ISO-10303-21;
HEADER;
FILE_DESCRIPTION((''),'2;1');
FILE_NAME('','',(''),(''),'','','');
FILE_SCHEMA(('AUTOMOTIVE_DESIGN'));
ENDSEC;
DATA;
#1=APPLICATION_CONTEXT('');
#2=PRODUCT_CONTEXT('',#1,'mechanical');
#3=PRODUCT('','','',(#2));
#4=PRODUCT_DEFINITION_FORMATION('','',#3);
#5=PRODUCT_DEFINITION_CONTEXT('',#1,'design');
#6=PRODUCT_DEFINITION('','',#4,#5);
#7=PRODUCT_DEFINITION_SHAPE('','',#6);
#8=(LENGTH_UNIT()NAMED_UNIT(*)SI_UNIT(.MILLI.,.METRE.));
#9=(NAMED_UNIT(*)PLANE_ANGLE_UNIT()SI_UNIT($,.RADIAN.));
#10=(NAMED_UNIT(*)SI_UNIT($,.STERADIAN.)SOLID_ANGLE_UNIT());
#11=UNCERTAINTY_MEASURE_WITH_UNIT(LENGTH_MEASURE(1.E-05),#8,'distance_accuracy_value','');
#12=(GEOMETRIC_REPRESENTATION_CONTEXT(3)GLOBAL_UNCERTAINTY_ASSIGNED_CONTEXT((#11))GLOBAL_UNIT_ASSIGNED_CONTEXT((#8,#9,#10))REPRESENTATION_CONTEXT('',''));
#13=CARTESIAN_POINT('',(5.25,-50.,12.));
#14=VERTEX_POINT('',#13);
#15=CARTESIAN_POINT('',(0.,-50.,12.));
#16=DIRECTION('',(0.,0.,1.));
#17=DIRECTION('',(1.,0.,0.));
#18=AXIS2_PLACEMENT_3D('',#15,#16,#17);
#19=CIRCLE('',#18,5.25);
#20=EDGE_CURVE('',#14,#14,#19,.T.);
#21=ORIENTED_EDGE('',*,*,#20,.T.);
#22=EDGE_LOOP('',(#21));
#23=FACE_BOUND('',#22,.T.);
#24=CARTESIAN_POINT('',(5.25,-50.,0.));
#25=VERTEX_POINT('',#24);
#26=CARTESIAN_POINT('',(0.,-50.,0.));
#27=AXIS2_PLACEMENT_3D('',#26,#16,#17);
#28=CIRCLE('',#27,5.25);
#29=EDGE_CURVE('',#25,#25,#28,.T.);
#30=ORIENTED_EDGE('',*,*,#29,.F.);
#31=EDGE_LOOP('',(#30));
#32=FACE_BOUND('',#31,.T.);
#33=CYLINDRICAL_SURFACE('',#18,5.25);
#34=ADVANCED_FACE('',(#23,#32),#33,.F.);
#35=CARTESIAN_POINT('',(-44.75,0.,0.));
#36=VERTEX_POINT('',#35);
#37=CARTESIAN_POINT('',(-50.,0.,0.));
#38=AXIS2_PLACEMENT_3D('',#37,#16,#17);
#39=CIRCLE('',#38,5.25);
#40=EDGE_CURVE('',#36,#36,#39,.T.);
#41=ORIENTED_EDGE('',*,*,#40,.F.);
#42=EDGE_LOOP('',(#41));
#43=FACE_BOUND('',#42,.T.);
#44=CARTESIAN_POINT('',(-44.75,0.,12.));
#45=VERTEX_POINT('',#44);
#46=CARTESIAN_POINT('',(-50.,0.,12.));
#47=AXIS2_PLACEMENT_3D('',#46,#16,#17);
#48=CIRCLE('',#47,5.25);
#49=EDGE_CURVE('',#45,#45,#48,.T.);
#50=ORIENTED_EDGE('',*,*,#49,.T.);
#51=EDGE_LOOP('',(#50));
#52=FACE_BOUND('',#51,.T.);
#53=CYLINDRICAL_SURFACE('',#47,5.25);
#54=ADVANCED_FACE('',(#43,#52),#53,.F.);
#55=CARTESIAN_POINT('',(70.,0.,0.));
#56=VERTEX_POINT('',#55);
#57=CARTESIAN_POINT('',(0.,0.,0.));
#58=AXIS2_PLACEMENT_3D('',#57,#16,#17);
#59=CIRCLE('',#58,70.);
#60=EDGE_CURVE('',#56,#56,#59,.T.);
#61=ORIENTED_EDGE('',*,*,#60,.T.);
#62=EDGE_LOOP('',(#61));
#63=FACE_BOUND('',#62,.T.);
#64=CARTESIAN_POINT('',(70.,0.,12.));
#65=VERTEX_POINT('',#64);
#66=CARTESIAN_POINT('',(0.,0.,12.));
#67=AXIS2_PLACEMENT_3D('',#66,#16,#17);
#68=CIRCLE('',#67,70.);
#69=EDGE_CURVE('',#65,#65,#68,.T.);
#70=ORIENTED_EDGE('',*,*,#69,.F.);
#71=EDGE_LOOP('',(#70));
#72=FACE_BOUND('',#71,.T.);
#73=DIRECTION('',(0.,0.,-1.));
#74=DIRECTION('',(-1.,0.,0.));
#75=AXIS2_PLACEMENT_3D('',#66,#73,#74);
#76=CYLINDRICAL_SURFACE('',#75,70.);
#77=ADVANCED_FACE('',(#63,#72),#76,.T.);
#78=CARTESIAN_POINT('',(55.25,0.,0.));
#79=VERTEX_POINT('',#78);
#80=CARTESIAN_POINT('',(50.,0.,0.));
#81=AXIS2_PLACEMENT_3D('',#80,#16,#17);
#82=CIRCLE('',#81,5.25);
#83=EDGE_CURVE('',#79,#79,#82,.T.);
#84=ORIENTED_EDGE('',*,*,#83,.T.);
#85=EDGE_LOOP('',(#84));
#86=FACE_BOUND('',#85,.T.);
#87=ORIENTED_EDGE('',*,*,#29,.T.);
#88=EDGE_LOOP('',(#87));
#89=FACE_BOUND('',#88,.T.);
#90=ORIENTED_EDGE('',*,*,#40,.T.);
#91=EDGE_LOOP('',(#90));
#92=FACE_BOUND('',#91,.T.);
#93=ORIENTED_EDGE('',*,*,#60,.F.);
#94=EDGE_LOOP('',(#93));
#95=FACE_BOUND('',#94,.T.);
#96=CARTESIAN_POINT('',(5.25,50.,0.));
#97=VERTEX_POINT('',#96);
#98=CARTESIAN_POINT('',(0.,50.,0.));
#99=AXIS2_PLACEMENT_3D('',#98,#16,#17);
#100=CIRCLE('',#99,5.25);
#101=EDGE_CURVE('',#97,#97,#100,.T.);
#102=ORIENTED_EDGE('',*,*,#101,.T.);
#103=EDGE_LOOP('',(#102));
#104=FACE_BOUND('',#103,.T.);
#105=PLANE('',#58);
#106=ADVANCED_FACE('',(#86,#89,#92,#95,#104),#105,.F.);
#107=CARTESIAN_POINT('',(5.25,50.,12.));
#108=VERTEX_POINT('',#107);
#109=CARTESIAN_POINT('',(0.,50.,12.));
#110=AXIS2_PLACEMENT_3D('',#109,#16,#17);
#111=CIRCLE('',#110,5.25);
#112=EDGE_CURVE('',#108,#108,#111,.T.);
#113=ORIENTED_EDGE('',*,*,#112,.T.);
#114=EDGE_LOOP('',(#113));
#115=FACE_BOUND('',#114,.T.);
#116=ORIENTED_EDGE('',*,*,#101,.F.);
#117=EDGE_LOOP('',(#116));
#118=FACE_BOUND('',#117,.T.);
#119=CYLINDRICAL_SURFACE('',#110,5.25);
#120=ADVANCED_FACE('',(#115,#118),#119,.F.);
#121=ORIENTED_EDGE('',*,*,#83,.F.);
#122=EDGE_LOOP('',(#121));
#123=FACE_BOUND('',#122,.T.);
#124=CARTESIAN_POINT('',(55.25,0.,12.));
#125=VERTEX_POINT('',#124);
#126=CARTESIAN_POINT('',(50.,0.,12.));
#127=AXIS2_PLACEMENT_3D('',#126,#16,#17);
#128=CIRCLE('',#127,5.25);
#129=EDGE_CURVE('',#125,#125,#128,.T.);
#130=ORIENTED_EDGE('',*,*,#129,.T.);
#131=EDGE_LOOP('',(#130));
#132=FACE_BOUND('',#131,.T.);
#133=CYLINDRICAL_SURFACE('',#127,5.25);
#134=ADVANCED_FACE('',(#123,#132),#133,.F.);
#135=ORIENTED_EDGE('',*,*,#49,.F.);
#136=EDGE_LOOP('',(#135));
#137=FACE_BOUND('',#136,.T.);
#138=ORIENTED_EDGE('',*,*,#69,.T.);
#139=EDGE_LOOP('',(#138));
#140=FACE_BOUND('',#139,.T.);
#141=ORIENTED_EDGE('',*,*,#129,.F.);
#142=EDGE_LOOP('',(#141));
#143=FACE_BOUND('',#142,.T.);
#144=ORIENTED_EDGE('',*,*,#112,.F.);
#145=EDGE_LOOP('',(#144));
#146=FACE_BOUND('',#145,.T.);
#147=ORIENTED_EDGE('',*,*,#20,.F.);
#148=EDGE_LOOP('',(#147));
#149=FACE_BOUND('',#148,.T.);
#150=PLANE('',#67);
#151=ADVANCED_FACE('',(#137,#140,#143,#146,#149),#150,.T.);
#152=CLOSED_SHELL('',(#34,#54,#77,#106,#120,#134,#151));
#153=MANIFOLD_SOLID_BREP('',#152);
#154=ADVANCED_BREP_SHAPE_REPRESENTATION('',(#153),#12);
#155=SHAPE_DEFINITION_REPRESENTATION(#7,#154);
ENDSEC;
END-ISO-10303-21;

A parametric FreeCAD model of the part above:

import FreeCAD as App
import Part
import Sketcher
Q = App.Units.Quantity

doc = App.newDocument("Part")
body = doc.addObject("PartDesign::Body", "Body")

# Sketch on XY plane
sketch1 = body.newObject("Sketcher::SketchObject", "Sketch")
sketch1.AttachmentSupport = (doc.getObject("XY_Plane"), [""])
sketch1.MapMode = "FlatFace"
sketch1.addGeometry(Part.Circle(App.Vector(0, 0, 0), App.Vector(0, 0, 1), 70), False)
sketch1.addConstraint(Sketcher.Constraint("Coincident", 0, 3, -1, 1))
sketch1.addConstraint(Sketcher.Constraint("Diameter", 0, Q("140 mm")))
pad1 = body.newObject("PartDesign::Pad", "Pad")
pad1.Profile = sketch1
pad1.Length = 12

# Sketch on XY plane
sketch2 = body.newObject("Sketcher::SketchObject", "Sketch001")
sketch2.AttachmentSupport = (doc.getObject("XY_Plane"), [""])
sketch2.MapMode = "FlatFace"
sketch2.AttachmentOffset = App.Placement(App.Vector(0, 0, 12), App.Rotation())
sketch2.addGeometry(Part.Circle(App.Vector(0, 50, 0), App.Vector(0, 0, 1), 5.25), False)
sketch2.addConstraint(Sketcher.Constraint("PointOnObject", 0, 3, -2))
sketch2.addConstraint(Sketcher.Constraint("Diameter", 0, Q("10.5 mm")))
sketch2.addConstraint(Sketcher.Constraint("DistanceY", -1, 1, 0, 3, Q("50 mm")))
doc.recompute()
hole = body.newObject("PartDesign::Hole", "Hole")
hole.Profile = sketch2
hole.ThreadType = "None"
hole.Diameter = 10.5
hole.DepthType = "ThroughAll"
doc.recompute()

polarpattern = body.newObject("PartDesign::PolarPattern", "PolarPattern")
polarpattern.Originals = [hole]
polarpattern.Axis = (doc.getObject("Z_Axis"), [""])
polarpattern.Angle = 360
polarpattern.Occurrences = 4
body.Tip = polarpattern

doc.recompute()
